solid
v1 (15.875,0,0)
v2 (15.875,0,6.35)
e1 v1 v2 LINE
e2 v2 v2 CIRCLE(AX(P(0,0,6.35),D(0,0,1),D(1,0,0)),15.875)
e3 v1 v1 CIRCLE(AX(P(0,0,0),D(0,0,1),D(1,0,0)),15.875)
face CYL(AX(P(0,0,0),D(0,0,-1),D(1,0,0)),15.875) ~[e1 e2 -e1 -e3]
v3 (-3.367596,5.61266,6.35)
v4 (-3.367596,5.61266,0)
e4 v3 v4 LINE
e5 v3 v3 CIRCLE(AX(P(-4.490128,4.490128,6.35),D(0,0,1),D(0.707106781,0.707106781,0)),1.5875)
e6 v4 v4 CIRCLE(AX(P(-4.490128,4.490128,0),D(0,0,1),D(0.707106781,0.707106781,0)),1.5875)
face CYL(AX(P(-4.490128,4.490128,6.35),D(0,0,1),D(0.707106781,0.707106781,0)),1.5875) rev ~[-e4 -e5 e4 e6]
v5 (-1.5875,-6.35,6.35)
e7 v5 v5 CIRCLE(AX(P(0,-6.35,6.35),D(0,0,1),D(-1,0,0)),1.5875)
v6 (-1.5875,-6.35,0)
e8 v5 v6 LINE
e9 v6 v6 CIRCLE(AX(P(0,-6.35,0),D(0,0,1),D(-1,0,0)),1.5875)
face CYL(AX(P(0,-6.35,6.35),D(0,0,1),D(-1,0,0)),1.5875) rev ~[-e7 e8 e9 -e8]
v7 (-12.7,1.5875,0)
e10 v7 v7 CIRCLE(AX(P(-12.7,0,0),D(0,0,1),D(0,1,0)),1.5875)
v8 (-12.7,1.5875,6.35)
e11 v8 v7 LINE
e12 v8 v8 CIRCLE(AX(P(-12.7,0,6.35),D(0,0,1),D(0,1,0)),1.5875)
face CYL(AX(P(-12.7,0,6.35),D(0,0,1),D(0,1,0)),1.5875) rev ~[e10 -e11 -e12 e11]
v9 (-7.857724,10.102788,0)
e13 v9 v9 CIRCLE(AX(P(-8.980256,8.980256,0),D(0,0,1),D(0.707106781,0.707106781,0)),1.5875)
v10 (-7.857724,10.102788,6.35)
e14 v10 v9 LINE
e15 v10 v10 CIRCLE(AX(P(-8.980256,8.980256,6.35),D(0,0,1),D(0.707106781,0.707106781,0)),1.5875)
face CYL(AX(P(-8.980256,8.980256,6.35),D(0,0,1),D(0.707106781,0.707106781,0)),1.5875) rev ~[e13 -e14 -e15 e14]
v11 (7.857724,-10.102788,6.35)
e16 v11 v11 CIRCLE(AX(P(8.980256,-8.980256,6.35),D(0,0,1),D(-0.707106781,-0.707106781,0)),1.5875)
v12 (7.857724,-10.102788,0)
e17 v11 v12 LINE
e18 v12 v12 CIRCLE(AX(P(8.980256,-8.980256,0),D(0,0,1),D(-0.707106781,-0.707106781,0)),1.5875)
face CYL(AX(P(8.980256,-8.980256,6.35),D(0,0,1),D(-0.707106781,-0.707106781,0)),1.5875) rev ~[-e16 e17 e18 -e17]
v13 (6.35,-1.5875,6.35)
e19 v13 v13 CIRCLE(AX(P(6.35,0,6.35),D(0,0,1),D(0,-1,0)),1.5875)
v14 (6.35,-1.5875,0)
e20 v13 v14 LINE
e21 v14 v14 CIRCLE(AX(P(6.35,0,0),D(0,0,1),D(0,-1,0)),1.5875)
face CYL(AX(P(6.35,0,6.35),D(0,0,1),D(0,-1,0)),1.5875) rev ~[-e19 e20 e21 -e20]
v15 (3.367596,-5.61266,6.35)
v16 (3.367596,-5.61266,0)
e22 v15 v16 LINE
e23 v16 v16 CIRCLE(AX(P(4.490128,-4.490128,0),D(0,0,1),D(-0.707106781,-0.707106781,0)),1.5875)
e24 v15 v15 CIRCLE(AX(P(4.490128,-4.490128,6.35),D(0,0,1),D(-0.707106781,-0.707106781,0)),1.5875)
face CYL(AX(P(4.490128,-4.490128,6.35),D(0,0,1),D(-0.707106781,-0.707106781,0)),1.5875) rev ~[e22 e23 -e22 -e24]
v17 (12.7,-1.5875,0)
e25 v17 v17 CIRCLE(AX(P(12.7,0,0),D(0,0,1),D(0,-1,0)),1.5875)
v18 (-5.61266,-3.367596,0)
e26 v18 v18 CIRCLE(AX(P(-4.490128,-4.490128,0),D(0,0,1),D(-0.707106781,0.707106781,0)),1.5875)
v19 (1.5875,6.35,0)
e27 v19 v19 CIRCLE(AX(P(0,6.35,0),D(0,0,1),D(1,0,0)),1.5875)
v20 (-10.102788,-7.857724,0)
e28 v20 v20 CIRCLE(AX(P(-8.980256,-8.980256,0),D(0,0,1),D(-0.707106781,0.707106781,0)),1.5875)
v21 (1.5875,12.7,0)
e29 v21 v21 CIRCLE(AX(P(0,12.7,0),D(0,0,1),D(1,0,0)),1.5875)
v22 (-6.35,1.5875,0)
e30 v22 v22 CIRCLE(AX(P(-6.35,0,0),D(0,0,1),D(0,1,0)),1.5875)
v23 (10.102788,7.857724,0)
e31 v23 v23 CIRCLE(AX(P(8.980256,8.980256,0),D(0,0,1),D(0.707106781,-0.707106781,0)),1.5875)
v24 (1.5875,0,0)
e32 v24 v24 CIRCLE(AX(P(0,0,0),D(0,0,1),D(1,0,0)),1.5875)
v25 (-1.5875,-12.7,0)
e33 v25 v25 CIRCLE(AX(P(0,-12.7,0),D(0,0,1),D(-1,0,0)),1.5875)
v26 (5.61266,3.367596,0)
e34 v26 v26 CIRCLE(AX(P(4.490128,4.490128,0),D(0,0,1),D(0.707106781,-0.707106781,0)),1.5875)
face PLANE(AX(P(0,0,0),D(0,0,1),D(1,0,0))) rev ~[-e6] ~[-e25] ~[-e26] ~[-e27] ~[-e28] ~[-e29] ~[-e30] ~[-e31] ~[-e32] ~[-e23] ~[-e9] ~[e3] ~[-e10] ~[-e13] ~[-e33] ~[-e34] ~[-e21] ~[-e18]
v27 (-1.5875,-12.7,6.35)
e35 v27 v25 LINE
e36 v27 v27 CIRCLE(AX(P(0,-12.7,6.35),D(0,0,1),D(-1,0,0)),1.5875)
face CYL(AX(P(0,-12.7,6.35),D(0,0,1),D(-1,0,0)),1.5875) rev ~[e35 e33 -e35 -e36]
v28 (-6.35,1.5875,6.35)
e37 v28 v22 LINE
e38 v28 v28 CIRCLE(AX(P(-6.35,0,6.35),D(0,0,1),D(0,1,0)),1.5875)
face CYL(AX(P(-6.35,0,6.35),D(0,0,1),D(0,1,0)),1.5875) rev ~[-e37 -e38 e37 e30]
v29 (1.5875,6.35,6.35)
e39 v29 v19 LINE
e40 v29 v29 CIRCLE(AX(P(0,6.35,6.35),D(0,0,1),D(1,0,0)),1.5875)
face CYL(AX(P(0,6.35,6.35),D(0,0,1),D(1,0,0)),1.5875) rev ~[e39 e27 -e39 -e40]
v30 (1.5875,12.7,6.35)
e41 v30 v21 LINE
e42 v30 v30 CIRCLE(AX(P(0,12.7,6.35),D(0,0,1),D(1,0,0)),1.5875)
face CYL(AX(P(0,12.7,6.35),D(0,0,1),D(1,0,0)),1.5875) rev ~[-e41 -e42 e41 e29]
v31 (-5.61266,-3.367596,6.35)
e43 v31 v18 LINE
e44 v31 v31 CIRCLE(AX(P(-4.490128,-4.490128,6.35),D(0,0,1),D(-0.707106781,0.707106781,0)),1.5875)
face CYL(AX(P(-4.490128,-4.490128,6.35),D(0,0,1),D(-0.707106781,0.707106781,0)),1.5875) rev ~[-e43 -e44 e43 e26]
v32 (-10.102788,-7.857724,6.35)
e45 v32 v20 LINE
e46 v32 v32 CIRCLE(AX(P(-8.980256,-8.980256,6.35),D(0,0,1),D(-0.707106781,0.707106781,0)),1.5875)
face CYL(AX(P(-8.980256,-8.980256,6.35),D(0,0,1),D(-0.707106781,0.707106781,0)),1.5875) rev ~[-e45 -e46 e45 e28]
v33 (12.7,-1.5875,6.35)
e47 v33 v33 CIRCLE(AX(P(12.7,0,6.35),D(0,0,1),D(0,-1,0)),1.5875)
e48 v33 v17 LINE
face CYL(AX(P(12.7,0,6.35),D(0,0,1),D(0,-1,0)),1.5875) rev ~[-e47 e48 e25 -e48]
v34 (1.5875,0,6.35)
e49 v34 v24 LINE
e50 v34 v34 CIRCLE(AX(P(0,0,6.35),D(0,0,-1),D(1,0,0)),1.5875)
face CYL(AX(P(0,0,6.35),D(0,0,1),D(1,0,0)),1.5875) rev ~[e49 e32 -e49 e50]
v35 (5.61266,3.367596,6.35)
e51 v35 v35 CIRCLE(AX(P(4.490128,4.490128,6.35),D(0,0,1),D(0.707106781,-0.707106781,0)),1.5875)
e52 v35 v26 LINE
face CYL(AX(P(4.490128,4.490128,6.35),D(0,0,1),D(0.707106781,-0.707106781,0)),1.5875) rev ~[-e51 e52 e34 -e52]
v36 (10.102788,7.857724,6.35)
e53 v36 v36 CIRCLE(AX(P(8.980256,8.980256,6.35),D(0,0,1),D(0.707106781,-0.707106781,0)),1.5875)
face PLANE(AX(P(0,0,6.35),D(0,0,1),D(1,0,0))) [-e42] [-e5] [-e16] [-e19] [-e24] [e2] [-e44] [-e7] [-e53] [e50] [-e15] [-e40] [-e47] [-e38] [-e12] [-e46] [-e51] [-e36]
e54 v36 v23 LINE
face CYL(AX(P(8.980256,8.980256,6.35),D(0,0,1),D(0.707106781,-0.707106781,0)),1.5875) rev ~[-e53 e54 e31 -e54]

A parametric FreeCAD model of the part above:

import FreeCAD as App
import Part
import Sketcher

V = App.Vector
Q = App.Units.Quantity

doc = App.newDocument("Part")
body = doc.addObject("PartDesign::Body", "Body")

sketch1 = body.newObject("Sketcher::SketchObject", "Sketch")
sketch1.AttachmentSupport = (doc.getObject("XY_Plane"), [""])
sketch1.MapMode = "FlatFace"
sketch1.addGeometry(Part.Circle(V(0, 0, 0), V(0, 0, 1), 16), False)
sketch1.addConstraint(Sketcher.Constraint("Coincident", 0, 3, -1, 1))
sketch1.addConstraint(Sketcher.Constraint("Diameter", 0, Q("1.25 in")))
pad1 = body.newObject("PartDesign::Pad", "Pad")
pad1.Profile = sketch1
pad1.Length = Q("0.25 in")

sketch2 = body.newObject("Sketcher::SketchObject", "Sketch001")
sketch2.AttachmentSupport = (doc.getObject("XY_Plane"), [""])
sketch2.MapMode = "FlatFace"
sketch2.AttachmentOffset = App.Placement(V(0, 0, 0.25 * 25.4), App.Rotation())
sketch2.addGeometry(Part.Circle(V(0, 12.7, 0), V(0, 0, 1), 1.6), False)
sketch2.addGeometry(Part.Circle(V(0, 6.3, 0), V(0, 0, 1), 1.6), False)
sketch2.addGeometry(Part.Circle(V(0, 0, 0), V(0, 0, 1), 1.6), False)
sketch2.addConstraint(Sketcher.Constraint("Coincident", 2, 3, -1, 1))
sketch2.addConstraint(Sketcher.Constraint("Equal", 0, 1))
sketch2.addConstraint(Sketcher.Constraint("Equal", 1, 2))
sketch2.addConstraint(Sketcher.Constraint("PointOnObject", 0, 3, -2))
sketch2.addConstraint(Sketcher.Constraint("PointOnObject", 1, 3, -2))
sketch2.addConstraint(Sketcher.Constraint("Diameter", 0, Q("0.125 in")))
sketch2.addConstraint(Sketcher.Constraint("DistanceY", -1, 1, 1, 3, Q("0.25 in")))
sketch2.addConstraint(Sketcher.Constraint("DistanceY", 1, 3, 0, 3, Q("0.25 in")))
pocket1 = body.newObject("PartDesign::Pocket", "Pocket")
pocket1.Profile = sketch2
pocket1.Length = Q("0.25 in")
doc.recompute()

polarpattern = body.newObject("PartDesign::PolarPattern", "PolarPattern")
polarpattern.Originals = [pocket1]
polarpattern.Axis = (doc.getObject("Z_Axis"), [""])
polarpattern.Angle = 360
polarpattern.Occurrences = 8
body.Tip = polarpattern

doc.recompute()
